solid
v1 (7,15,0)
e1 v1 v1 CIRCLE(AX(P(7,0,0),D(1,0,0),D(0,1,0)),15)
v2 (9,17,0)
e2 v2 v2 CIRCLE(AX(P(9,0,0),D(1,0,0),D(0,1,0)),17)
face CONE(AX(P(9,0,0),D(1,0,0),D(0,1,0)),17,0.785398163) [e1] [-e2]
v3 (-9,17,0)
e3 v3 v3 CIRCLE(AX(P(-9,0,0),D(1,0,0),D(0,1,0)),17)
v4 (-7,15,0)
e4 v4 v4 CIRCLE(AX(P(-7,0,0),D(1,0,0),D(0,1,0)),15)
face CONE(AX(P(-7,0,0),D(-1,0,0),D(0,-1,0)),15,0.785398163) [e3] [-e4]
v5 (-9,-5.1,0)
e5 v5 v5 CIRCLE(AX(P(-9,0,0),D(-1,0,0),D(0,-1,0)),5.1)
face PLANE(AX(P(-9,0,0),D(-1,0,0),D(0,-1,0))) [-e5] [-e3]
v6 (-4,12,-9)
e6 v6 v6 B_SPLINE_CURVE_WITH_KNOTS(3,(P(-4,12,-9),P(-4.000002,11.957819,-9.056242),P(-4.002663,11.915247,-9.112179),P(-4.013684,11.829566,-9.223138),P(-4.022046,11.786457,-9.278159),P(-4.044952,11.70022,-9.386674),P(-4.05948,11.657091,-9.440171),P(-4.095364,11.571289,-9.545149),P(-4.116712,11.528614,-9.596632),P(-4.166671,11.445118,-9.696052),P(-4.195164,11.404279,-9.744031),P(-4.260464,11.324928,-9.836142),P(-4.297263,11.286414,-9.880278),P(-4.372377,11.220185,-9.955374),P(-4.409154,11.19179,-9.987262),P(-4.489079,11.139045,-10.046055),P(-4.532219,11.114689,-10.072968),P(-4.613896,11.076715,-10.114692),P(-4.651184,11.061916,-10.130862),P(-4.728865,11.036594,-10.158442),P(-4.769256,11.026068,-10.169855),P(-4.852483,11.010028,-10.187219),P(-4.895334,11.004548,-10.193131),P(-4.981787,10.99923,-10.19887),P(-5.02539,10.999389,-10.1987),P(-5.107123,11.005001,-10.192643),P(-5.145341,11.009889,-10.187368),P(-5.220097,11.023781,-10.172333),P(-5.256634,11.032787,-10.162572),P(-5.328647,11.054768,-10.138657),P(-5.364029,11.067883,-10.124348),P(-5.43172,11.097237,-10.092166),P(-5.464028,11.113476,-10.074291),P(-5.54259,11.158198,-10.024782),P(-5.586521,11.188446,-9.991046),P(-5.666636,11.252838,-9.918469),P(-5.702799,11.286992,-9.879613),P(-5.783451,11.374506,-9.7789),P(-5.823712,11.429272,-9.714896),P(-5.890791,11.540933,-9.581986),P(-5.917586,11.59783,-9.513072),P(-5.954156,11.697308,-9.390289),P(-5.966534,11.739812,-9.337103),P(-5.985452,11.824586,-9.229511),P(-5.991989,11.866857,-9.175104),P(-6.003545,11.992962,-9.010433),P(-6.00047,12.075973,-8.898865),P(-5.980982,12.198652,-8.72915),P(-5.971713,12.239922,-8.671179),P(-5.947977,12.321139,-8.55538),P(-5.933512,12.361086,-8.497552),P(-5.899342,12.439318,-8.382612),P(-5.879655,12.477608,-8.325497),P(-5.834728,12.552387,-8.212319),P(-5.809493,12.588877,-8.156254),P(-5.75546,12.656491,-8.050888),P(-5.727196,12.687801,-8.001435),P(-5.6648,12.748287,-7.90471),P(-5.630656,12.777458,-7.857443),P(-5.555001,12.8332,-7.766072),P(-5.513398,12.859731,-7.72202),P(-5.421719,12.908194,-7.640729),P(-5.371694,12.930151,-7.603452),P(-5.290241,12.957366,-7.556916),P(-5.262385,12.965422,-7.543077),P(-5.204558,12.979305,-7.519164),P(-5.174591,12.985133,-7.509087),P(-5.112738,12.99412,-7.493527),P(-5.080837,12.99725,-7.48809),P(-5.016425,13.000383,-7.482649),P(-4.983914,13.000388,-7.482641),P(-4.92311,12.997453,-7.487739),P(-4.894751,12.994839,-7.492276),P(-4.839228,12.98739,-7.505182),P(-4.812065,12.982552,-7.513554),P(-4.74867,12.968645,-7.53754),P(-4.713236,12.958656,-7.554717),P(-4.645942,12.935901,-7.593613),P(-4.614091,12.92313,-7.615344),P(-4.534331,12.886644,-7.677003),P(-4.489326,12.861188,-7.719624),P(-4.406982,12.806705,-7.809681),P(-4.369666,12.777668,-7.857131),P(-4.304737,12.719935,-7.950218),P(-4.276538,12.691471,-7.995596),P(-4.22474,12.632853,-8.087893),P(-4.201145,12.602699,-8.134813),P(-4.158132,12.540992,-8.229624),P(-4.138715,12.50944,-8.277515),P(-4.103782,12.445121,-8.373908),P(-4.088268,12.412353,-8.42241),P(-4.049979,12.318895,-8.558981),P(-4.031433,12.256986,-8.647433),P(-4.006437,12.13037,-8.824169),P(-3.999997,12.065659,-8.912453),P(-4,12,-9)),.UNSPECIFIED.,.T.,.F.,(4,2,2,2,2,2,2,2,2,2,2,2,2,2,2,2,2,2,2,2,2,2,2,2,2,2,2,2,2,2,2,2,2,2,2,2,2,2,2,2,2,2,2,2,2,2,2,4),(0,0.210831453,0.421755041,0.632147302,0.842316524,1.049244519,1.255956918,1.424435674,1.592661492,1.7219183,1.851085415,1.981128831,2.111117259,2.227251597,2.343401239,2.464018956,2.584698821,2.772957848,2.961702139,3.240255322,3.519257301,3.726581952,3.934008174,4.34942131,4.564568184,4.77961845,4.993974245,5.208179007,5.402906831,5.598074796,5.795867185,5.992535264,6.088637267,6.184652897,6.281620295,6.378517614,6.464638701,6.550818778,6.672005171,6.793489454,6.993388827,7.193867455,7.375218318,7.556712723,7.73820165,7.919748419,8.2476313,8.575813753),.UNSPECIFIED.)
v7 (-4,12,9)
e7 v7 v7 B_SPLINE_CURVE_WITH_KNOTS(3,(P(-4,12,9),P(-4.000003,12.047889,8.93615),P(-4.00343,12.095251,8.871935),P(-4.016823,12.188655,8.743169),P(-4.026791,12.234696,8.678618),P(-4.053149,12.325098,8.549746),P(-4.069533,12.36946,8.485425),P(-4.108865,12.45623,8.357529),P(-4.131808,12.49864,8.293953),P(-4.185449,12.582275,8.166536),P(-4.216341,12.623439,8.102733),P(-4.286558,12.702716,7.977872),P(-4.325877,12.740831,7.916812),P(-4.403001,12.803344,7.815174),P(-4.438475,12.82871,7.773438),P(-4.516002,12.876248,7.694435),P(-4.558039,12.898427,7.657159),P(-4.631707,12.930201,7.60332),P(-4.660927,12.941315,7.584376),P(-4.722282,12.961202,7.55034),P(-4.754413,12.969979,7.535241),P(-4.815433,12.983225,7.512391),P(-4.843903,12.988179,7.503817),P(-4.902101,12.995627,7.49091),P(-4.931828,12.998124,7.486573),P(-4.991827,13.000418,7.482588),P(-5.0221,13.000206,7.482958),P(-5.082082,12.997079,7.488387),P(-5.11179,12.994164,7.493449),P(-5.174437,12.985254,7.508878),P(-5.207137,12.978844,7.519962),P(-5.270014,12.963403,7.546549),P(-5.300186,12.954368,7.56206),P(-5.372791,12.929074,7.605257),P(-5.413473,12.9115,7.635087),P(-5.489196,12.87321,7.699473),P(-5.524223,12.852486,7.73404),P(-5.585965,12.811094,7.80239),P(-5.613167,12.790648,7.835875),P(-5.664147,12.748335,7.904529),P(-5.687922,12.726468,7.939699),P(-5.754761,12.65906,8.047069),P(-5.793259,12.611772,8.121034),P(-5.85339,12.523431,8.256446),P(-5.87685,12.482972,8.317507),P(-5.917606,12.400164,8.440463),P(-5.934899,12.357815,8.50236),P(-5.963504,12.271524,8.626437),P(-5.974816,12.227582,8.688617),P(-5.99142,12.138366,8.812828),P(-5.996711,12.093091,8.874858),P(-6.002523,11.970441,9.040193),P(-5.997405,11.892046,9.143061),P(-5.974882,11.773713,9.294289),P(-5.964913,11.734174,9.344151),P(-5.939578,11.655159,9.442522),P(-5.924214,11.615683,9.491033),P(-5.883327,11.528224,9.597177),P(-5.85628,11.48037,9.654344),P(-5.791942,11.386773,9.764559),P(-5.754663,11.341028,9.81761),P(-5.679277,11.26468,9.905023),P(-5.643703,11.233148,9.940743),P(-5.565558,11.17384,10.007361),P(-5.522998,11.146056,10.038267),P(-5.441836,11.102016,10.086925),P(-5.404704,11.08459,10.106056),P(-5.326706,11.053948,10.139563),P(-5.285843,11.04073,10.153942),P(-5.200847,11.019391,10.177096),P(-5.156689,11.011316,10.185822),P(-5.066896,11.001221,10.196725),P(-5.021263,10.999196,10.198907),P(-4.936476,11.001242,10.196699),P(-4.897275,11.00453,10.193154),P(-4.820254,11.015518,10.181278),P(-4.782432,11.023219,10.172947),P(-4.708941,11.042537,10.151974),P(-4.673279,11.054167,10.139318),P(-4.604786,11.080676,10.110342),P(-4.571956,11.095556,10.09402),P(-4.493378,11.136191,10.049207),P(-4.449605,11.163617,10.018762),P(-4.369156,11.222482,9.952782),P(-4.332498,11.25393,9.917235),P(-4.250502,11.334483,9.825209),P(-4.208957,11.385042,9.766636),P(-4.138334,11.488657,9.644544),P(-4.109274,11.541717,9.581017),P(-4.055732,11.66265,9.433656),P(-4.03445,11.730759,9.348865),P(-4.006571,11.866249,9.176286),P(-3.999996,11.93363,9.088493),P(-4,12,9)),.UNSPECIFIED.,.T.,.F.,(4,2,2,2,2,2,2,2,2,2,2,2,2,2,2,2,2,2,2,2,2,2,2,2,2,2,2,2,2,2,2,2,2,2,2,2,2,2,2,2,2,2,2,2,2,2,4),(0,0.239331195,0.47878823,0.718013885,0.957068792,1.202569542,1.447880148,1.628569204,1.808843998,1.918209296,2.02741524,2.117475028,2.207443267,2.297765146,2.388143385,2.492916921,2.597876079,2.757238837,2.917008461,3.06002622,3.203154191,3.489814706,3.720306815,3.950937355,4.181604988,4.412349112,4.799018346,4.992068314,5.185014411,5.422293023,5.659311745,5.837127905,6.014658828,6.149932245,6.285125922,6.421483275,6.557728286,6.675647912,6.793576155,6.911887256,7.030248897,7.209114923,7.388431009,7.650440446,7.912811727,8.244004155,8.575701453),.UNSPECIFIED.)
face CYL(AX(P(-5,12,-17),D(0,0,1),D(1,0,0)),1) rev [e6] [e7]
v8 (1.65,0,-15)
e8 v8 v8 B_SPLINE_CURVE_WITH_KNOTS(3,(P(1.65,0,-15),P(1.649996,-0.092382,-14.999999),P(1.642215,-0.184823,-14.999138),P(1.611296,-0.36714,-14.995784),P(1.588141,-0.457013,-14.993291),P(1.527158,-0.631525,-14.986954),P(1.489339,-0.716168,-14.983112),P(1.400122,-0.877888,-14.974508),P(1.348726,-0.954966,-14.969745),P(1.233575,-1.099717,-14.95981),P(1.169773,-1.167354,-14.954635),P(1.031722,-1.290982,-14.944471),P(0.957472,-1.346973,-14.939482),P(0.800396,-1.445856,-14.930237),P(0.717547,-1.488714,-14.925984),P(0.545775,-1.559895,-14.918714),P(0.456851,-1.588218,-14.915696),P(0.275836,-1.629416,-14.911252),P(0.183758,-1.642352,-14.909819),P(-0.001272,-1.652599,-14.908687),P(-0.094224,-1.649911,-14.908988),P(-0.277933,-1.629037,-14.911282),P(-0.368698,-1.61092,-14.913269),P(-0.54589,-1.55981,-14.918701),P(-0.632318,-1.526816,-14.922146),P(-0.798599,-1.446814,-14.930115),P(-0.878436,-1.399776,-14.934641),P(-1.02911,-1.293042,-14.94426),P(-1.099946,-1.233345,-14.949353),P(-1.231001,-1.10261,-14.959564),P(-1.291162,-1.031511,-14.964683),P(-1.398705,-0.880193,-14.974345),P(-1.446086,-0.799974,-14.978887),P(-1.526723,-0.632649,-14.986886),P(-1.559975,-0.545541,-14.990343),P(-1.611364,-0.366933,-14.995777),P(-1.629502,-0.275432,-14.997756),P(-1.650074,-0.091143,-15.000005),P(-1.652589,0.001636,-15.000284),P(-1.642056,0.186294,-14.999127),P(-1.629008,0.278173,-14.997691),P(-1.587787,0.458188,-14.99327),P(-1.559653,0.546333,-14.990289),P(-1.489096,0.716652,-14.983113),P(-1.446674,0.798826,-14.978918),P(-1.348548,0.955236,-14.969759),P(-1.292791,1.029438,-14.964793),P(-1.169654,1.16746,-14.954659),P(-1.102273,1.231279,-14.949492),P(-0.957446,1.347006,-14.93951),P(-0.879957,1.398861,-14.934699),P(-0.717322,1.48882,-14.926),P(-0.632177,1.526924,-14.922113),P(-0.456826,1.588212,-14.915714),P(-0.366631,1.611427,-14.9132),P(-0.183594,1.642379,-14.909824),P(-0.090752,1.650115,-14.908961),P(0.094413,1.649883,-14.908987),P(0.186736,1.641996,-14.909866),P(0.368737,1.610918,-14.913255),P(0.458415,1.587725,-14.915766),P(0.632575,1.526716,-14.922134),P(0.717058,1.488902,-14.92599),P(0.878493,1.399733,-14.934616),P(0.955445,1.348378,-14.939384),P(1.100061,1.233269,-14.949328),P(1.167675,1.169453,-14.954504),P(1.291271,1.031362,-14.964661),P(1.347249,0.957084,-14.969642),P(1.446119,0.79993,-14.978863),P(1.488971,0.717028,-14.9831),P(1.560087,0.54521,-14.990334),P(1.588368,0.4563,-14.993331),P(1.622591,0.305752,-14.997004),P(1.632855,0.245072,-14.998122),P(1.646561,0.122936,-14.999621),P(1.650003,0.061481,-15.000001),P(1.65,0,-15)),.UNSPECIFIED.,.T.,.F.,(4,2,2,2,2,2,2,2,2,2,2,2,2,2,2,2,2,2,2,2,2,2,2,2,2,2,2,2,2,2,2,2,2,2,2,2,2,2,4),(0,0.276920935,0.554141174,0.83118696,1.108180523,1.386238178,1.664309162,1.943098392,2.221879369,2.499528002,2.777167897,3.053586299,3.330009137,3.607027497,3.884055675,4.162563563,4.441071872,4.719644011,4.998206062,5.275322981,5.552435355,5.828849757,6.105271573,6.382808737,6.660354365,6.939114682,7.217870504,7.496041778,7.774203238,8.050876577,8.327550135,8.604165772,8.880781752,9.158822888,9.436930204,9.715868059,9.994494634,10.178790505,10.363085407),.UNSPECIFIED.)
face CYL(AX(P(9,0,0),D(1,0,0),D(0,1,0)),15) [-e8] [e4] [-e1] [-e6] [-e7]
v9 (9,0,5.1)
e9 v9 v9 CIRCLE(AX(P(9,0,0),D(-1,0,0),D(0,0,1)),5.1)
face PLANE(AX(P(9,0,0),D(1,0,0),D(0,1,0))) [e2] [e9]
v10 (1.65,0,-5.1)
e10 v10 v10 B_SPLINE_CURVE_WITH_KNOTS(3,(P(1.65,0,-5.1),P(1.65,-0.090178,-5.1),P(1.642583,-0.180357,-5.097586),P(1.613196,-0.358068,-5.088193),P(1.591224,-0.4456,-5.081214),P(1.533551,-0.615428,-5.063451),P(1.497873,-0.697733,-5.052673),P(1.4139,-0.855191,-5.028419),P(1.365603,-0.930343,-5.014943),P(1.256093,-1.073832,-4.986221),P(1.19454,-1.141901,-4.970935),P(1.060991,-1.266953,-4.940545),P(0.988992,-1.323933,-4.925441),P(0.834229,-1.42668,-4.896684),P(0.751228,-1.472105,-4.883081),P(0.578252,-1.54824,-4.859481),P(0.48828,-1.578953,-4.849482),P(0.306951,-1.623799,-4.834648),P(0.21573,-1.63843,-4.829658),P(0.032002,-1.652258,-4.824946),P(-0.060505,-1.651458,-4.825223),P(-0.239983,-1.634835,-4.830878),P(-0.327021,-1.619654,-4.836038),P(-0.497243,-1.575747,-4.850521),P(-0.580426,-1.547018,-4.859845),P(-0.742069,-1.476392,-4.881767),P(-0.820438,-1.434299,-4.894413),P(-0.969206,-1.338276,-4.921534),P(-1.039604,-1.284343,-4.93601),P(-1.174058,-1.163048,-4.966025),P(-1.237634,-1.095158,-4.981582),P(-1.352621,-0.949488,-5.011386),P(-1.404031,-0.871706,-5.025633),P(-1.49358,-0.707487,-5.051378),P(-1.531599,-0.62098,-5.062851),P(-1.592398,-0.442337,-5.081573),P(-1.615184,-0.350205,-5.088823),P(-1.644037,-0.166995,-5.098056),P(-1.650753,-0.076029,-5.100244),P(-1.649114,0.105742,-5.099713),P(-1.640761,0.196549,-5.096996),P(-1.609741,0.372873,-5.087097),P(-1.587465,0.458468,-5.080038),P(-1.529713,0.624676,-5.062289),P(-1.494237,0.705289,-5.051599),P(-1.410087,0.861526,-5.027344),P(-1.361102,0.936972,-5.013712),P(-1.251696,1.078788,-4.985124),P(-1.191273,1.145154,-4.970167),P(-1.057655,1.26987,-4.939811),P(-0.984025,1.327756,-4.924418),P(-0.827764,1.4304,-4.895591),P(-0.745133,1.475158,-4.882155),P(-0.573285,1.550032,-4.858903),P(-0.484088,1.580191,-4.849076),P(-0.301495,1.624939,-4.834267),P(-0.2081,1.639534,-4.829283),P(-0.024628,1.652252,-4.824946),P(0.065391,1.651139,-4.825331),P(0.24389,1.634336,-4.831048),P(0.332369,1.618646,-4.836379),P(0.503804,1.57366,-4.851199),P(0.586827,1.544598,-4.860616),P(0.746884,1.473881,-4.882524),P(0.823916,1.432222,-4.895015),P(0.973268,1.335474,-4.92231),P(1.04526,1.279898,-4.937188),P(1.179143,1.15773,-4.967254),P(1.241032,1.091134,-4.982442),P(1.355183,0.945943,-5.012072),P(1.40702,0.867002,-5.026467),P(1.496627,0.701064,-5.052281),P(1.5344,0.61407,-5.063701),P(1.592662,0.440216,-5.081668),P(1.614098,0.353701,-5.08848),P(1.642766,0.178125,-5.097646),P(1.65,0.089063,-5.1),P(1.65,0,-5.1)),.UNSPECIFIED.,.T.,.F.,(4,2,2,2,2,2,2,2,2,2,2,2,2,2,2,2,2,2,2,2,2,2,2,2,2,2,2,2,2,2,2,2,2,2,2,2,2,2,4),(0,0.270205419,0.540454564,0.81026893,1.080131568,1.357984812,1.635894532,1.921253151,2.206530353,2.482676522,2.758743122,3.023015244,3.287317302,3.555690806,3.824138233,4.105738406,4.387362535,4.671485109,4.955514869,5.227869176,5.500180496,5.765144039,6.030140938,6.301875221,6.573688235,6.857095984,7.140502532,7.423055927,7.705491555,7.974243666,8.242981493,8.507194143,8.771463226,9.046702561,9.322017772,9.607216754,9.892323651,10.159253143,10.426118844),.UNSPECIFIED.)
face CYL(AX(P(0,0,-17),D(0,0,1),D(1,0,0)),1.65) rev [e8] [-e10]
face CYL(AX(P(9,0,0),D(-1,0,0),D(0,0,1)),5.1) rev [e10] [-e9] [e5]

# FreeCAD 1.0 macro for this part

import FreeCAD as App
import Part
import Sketcher
from FreeCAD import Vector

doc = App.newDocument("Part")
body = doc.addObject("PartDesign::Body", "Body")

# Sketch on XY plane
sketch1 = body.newObject("Sketcher::SketchObject", "Sketch")
sketch1.AttachmentSupport = (doc.getObject("XY_Plane"), [""])
sketch1.MapMode = "FlatFace"
sketch1.addGeometry(Part.LineSegment(Vector(9, 0, 0), Vector(9, 17, 0)), False)
sketch1.addGeometry(Part.LineSegment(Vector(9, 17, 0), Vector(7, 15, 0)), False)
sketch1.addGeometry(Part.LineSegment(Vector(7, 15, 0), Vector(-7, 15, 0)), False)
sketch1.addGeometry(Part.LineSegment(Vector(-7, 15, 0), Vector(-9, 17, 0)), False)
sketch1.addGeometry(Part.LineSegment(Vector(-9, 17, 0), Vector(-9, 0, 0)), False)
sketch1.addGeometry(Part.LineSegment(Vector(-9, 0, 0), Vector(9, 0, 0)), False)
sketch1.addConstraint(Sketcher.Constraint("Coincident", 0, 2, 1, 1))
sketch1.addConstraint(Sketcher.Constraint("Coincident", 1, 2, 2, 1))
sketch1.addConstraint(Sketcher.Constraint("Coincident", 2, 2, 3, 1))
sketch1.addConstraint(Sketcher.Constraint("Coincident", 3, 2, 4, 1))
sketch1.addConstraint(Sketcher.Constraint("Coincident", 4, 2, 5, 1))
sketch1.addConstraint(Sketcher.Constraint("Coincident", 5, 2, 0, 1))
sketch1.addConstraint(Sketcher.Constraint("Vertical", 0))
sketch1.addConstraint(Sketcher.Constraint("Horizontal", 2))
sketch1.addConstraint(Sketcher.Constraint("Vertical", 4))
sketch1.addConstraint(Sketcher.Constraint("Horizontal", 5))
sketch1.addConstraint(Sketcher.Constraint("Symmetric", 4, 2, 5, 2, -1, 1))
sketch1.addConstraint(Sketcher.Constraint("Perpendicular", 1, 3))
sketch1.addConstraint(Sketcher.Constraint("Horizontal", 0, 2, 3, 2))
sketch1.addConstraint(Sketcher.Constraint("Equal", 1, 3))
sketch1.addConstraint(Sketcher.Constraint("DistanceX", 2, 2, 2, 1, 14.0))
sketch1.addConstraint(Sketcher.Constraint("DistanceX", 5, 1, 5, 2, 18.0))
sketch1.addConstraint(Sketcher.Constraint("DistanceY", 0, 1, 0, 2, 17.0))
revolution = body.newObject("PartDesign::Revolution", "Revolution")
revolution.Profile = sketch1
revolution.ReferenceAxis = (sketch1, ["H_Axis"])
revolution.Angle = 360

# Sketch on YZ plane
sketch2 = body.newObject("Sketcher::SketchObject", "Sketch001")
sketch2.AttachmentSupport = (doc.getObject("YZ_Plane"), [""])
sketch2.MapMode = "FlatFace"
sketch2.AttachmentOffset = App.Placement(Vector(0, 0, -9), App.Rotation())
sketch2.addGeometry(Part.Circle(Vector(0, 0, 0), Vector(0, 0, 1), 5), False)
sketch2.addConstraint(Sketcher.Constraint("Coincident", 0, 3, -1, 1))
sketch2.addConstraint(Sketcher.Constraint("Diameter", 0, 10.2))
pocket1 = body.newObject("PartDesign::Pocket", "Pocket")
pocket1.Profile = sketch2
pocket1.Type = "ThroughAll"
pocket1.Midplane = True

# Sketch on XY plane
sketch3 = body.newObject("Sketcher::SketchObject", "Sketch002")
sketch3.AttachmentSupport = (doc.getObject("XY_Plane"), [""])
sketch3.MapMode = "FlatFace"
sketch3.addGeometry(Part.Circle(Vector(-5, 12, 0), Vector(0, 0, 1), 1), False)
sketch3.addConstraint(Sketcher.Constraint("Diameter", 0, 2.0))
sketch3.addConstraint(Sketcher.Constraint("DistanceX", 0, 3, -1, 1, 5.0))
sketch3.addConstraint(Sketcher.Constraint("DistanceY", -1, 1, 0, 3, 12.0))
pocket2 = body.newObject("PartDesign::Pocket", "Pocket001")
pocket2.Profile = sketch3
pocket2.Type = "ThroughAll"
pocket2.Midplane = True

# Sketch on XY plane
sketch4 = body.newObject("Sketcher::SketchObject", "Sketch003")
sketch4.AttachmentSupport = (doc.getObject("XY_Plane"), [""])
sketch4.MapMode = "FlatFace"
sketch4.addGeometry(Part.Circle(Vector(0, 0, 0), Vector(0, 0, 1), 1.6), False)
sketch4.addConstraint(Sketcher.Constraint("Coincident", 0, 3, -1, 1))
sketch4.addConstraint(Sketcher.Constraint("Diameter", 0, 3.3))
pocket3 = body.newObject("PartDesign::Pocket", "Pocket002")
pocket3.Profile = sketch4
pocket3.Type = "ThroughAll"

doc.recompute()
